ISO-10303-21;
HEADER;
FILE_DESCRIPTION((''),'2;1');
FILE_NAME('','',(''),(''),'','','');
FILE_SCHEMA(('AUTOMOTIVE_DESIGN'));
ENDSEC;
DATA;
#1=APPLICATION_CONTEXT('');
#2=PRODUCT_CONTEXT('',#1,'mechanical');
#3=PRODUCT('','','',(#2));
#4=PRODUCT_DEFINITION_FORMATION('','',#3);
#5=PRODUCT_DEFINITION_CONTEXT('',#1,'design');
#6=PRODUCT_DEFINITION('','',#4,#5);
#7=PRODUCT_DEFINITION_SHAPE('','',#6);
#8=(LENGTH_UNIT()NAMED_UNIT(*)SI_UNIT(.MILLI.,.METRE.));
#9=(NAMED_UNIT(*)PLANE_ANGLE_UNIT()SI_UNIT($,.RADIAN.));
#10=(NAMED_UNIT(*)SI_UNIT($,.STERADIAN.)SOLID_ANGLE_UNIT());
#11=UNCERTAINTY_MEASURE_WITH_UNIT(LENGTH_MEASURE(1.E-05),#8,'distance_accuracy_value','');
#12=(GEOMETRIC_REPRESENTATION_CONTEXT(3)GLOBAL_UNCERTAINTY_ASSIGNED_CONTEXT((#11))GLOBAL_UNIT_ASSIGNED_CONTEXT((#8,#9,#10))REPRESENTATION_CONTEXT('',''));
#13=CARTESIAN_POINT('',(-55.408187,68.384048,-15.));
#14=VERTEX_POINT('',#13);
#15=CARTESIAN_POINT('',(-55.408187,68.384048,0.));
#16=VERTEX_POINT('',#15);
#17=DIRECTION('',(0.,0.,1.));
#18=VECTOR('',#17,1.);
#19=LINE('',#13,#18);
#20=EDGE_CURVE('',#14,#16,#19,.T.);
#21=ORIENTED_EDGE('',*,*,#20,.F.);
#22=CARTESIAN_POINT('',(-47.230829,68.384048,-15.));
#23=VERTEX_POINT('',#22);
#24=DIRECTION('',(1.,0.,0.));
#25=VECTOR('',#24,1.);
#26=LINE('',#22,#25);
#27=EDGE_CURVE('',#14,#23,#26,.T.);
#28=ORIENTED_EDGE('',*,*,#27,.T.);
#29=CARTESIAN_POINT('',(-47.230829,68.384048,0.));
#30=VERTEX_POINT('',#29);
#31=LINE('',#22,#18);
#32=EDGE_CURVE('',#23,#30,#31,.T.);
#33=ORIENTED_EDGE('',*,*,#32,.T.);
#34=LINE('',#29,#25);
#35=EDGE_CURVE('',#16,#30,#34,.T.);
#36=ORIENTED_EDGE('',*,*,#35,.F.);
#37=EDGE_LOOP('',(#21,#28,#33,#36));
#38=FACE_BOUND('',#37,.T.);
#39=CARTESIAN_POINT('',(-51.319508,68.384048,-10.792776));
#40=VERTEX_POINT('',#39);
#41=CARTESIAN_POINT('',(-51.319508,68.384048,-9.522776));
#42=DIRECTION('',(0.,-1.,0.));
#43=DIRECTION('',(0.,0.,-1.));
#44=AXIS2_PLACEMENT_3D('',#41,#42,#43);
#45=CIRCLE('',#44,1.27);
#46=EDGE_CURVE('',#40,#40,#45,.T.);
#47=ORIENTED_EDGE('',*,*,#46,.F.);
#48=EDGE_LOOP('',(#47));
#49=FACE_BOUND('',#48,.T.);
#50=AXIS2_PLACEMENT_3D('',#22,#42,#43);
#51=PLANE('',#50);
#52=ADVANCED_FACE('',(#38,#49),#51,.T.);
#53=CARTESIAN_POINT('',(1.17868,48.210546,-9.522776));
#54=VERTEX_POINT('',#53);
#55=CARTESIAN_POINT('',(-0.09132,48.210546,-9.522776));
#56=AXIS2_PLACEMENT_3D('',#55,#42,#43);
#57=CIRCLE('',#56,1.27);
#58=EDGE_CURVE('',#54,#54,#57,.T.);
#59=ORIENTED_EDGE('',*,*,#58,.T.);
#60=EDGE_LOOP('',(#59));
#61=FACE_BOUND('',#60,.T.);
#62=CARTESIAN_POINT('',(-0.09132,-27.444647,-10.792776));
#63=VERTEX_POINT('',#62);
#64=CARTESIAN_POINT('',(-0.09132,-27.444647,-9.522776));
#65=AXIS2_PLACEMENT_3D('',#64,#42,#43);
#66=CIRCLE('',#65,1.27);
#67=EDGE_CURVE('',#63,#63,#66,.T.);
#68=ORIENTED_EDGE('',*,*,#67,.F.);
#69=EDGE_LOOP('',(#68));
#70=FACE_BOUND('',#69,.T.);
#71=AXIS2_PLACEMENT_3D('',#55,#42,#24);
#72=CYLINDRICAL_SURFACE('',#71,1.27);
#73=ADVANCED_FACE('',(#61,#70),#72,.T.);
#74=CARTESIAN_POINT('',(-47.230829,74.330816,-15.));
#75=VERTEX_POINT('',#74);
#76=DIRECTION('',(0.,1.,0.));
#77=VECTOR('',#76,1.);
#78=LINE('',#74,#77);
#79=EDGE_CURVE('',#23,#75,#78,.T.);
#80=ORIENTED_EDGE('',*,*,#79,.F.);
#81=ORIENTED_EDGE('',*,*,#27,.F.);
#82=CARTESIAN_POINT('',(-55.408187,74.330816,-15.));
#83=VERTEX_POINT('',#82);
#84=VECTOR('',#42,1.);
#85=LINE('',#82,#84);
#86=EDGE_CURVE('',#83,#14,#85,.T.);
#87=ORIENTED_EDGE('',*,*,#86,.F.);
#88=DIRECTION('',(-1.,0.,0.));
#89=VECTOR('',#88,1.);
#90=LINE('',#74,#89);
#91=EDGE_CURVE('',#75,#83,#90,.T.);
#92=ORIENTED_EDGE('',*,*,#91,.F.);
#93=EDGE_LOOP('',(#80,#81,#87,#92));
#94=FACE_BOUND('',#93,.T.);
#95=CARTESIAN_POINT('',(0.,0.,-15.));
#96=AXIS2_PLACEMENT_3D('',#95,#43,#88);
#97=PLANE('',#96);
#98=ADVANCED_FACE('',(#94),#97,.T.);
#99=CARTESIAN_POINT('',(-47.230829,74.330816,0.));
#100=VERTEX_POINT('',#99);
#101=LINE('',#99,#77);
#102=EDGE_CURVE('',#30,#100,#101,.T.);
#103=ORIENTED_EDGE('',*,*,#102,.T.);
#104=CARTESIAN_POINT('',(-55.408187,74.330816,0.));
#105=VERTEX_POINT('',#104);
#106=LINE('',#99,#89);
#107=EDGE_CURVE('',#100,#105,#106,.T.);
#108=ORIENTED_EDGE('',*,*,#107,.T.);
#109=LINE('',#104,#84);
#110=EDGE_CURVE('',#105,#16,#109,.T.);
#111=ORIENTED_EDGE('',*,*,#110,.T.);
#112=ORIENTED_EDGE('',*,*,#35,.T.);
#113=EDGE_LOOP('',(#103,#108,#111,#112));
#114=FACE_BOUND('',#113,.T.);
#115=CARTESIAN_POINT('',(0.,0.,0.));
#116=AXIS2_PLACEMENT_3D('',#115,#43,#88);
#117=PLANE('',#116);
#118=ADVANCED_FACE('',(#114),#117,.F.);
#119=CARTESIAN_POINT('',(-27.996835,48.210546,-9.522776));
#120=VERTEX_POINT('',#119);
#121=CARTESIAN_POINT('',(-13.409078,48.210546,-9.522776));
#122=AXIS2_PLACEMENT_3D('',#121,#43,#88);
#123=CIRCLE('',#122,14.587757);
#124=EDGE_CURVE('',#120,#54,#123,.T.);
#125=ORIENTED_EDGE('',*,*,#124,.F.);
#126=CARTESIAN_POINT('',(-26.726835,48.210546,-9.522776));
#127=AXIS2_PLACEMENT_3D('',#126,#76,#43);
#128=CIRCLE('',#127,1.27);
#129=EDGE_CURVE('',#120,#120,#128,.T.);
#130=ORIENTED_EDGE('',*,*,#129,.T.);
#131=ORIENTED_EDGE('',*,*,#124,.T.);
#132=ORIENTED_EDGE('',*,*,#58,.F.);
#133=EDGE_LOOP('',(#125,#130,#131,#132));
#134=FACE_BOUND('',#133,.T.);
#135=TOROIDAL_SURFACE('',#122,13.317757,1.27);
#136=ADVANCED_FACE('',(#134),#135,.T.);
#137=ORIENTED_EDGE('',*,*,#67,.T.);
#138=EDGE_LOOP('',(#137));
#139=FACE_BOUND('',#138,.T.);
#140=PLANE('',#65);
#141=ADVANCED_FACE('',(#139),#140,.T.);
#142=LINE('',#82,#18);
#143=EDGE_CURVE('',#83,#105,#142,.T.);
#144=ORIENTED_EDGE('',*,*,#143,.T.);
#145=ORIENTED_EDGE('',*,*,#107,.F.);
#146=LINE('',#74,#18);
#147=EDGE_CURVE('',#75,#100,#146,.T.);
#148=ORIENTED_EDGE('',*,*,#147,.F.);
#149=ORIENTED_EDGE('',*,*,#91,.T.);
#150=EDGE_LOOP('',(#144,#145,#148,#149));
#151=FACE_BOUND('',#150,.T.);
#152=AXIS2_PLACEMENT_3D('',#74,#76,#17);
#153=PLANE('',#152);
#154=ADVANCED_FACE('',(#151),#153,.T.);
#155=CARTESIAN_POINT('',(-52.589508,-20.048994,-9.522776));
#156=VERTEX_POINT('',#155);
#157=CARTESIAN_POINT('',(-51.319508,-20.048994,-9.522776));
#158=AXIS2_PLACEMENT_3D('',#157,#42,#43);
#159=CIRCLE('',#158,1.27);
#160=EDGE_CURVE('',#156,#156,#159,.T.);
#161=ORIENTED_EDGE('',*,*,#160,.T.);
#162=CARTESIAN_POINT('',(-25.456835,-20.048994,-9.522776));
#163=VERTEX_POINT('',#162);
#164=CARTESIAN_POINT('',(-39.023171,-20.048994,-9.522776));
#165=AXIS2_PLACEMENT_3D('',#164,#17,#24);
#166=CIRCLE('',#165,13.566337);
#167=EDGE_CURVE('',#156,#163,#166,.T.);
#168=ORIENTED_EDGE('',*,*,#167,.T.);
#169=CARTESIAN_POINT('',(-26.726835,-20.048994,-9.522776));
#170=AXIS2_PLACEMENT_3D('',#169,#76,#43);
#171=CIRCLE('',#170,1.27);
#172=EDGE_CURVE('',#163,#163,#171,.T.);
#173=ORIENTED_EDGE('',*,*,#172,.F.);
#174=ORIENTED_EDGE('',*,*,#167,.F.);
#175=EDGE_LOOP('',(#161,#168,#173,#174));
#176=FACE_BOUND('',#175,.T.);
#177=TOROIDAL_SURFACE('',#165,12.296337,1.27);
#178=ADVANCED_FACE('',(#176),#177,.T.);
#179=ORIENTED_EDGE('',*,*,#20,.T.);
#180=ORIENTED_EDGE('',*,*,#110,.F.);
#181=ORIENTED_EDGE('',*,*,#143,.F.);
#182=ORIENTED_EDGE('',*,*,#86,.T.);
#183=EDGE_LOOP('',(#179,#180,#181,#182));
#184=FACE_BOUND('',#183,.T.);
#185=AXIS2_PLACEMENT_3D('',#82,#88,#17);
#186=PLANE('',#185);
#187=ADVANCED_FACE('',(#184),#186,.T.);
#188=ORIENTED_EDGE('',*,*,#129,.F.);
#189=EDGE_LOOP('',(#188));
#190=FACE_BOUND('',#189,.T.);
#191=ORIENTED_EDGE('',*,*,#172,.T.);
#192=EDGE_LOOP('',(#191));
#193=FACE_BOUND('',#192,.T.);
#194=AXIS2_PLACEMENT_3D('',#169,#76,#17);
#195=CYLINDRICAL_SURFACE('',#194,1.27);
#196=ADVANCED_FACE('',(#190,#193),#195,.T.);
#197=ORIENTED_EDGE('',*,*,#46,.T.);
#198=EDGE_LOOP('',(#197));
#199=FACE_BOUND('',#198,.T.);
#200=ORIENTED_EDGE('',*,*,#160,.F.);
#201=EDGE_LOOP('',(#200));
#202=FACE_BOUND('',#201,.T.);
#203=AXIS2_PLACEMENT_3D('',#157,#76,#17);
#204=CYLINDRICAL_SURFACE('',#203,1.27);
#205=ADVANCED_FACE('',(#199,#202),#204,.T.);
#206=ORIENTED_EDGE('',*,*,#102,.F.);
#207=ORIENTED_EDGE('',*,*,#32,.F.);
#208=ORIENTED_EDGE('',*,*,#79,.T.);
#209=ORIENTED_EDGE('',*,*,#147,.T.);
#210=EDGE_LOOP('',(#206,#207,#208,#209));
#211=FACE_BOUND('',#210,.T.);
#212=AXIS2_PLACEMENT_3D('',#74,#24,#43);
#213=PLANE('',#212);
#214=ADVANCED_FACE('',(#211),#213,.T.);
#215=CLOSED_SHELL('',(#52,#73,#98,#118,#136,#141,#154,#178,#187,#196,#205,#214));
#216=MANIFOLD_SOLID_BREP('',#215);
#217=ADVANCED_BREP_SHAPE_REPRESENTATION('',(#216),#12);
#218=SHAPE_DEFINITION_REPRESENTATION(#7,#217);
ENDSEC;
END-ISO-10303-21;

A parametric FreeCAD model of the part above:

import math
import FreeCAD as App
import Part
import Sketcher
from FreeCAD import Vector
Q = App.Units.Quantity

doc = App.newDocument("Part")
body = doc.addObject("PartDesign::Body", "Body")

# Sketch on XY plane
sketch1 = doc.addObject("Sketcher::SketchObject", "Sketch")
body.addObject(sketch1)
sketch1.AttachmentSupport = (doc.XY_Plane, [""])
sketch1.MapMode = "FlatFace"
sketch1.addGeometry([
    Part.LineSegment(Vector(-55.408187, 74.330816, 0), Vector(-55.408187, 68.384048, 0)),
    Part.LineSegment(Vector(-55.408187, 68.384048, 0), Vector(-47.230829, 68.384048, 0)),
    Part.LineSegment(Vector(-47.230829, 68.384048, 0), Vector(-47.230829, 74.330816, 0)),
    Part.LineSegment(Vector(-47.230829, 74.330816, 0), Vector(-55.408187, 74.330816, 0)),
], False)
sketch1.addConstraint([
    Sketcher.Constraint("Coincident", 0, 2, 1, 1),
    Sketcher.Constraint("Coincident", 1, 2, 2, 1),
    Sketcher.Constraint("Coincident", 2, 2, 3, 1),
    Sketcher.Constraint("Coincident", 3, 2, 0, 1),
    Sketcher.Constraint("Vertical", 0),
    Sketcher.Constraint("Horizontal", 1),
    Sketcher.Constraint("Vertical", 2),
    Sketcher.Constraint("Horizontal", 3),
    Sketcher.Constraint("DistanceX", 1, 1, 1, 2, Q("8.177358 mm")),
    Sketcher.Constraint("DistanceY", 0, 2, 0, 1, Q("5.946768 mm")),
    Sketcher.Constraint("DistanceY", -1, 1, 0, 2, Q("68.384048 mm")),
    Sketcher.Constraint("DistanceX", 1, 2, -1, 1, Q("47.230829 mm")),
])
pad1 = doc.addObject("PartDesign::Pad", "Pad")
body.addObject(pad1)
pad1.Profile = sketch1
pad1.Length = 15
pad1.Reversed = True

# Sketch on XZ plane
sketch2 = doc.addObject("Sketcher::SketchObject", "Sketch001")
body.addObject(sketch2)
sketch2.AttachmentSupport = (doc.XZ_Plane, [""])
sketch2.MapMode = "FlatFace"
sketch2.AttachmentOffset = App.Placement(Vector(0, 0, -68.384048), App.Rotation())
sketch2.addGeometry(Part.Circle(Vector(-51.319508, -9.522776, 0), Vector(0, 0, 1), 1.27), False)
sketch2.addConstraint([
    Sketcher.Constraint("Diameter", 0, Q("2.54 mm")),
    Sketcher.Constraint("DistanceX", 0, 3, -1, 1, Q("51.319508 mm")),
    Sketcher.Constraint("DistanceY", 0, 3, -1, 1, Q("9.522776 mm")),
])

# Sketch on XY plane
sketch3 = doc.addObject("Sketcher::SketchObject", "Sketch002")
body.addObject(sketch3)
sketch3.AttachmentSupport = (doc.XY_Plane, [""])
sketch3.MapMode = "FlatFace"
sketch3.AttachmentOffset = App.Placement(Vector(0, 0, -9.522776), App.Rotation())
sketch3.addGeometry([
    Part.LineSegment(Vector(-51.319508, 68.384048, 0), Vector(-51.319508, -20.048994, 0)),  # 0
    Part.ArcOfCircle(Part.Circle(Vector(-39.023171, -20.048994, 0), Vector(0, 0, 1), 12.296337), math.radians(180), math.radians(360)),  # 1
    Part.LineSegment(Vector(-26.726835, -20.048994, 0), Vector(-26.726835, 48.210546, 0)),  # 2
    Part.ArcOfCircle(Part.Circle(Vector(-13.409078, 48.210546, 0), Vector(0, 0, 1), 13.317757), math.radians(0), math.radians(180)),  # 3
    Part.LineSegment(Vector(-0.09132, 48.210546, 0), Vector(-0.09132, -27.444647, 0)),  # 4
], False)
sketch3.addConstraint([
    Sketcher.Constraint("Tangent", 0, 2, 1, 1),
    Sketcher.Constraint("Tangent", 1, 2, 2, 1),
    Sketcher.Constraint("Tangent", 2, 2, 3, 2),
    Sketcher.Constraint("Tangent", 3, 1, 4, 1),
    Sketcher.Constraint("Vertical", 0),
    Sketcher.Constraint("Vertical", 2),
    Sketcher.Constraint("Vertical", 4),
    Sketcher.Constraint("Radius", 1, Q("12.296337 mm")),
    Sketcher.Constraint("Radius", 3, Q("13.317757 mm")),
    Sketcher.Constraint("DistanceY", 2, 1, 2, 2, Q("68.259541 mm")),
    Sketcher.Constraint("DistanceY", 3, 3, 0, 1, Q("20.173502 mm")),
    Sketcher.Constraint("DistanceY", 4, 2, 4, 1, Q("75.655193 mm")),
    Sketcher.Constraint("DistanceX", 1, 3, -1, 1, Q("39.023171 mm")),
    Sketcher.Constraint("DistanceY", -1, 1, 0, 1, Q("68.384048 mm")),
])
doc.recompute()

additivepipe = doc.addObject("PartDesign::AdditivePipe", "AdditivePipe")
body.addObject(additivepipe)
additivepipe.Profile = sketch2
additivepipe.Spine = (sketch3, ["Edge1", "Edge2", "Edge3", "Edge4", "Edge5"])

doc.recompute()
